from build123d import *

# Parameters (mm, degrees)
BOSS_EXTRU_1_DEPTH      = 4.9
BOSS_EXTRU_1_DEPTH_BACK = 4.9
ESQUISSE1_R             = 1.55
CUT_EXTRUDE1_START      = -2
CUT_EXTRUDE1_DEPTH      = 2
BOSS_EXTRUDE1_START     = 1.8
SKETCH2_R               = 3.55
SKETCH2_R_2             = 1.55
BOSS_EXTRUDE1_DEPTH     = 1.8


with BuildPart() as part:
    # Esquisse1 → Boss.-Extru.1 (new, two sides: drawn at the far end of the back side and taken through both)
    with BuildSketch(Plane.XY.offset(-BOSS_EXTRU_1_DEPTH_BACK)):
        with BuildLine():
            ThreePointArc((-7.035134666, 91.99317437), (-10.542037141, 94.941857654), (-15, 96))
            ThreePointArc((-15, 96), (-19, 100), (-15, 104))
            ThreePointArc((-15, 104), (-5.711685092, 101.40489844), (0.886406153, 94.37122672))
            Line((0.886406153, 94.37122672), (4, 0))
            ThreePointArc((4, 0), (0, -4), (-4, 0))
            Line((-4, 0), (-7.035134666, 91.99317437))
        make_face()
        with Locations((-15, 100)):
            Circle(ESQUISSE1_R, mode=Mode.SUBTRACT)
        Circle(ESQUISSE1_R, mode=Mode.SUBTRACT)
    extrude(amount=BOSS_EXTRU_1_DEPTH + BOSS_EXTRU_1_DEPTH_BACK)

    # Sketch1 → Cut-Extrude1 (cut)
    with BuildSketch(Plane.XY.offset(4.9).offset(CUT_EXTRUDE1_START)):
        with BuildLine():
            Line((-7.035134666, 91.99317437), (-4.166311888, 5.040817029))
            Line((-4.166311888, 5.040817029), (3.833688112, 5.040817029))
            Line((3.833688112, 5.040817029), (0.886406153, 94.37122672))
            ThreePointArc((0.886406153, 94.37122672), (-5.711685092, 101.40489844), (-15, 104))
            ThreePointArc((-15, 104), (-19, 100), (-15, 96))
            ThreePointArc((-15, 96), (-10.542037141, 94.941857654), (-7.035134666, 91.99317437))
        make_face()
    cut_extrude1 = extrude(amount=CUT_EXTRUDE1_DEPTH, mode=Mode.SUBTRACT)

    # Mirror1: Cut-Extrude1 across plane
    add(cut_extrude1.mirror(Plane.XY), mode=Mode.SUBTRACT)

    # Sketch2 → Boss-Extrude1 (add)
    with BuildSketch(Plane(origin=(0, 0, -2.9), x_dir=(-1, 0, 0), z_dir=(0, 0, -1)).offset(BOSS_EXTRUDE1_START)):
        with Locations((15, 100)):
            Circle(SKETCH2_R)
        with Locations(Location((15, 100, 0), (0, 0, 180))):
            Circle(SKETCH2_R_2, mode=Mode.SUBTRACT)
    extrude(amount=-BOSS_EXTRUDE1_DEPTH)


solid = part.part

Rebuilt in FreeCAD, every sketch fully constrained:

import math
import FreeCAD as App
import Part
import Sketcher

V = App.Vector

doc = App.newDocument("Part")
body = doc.addObject("PartDesign::Body", "Body")

# Sketch on XY plane
sketch1 = doc.addObject("Sketcher::SketchObject", "Sketch")
body.addObject(sketch1)
sketch1.AttachmentSupport = (doc.XY_Plane, [""])
sketch1.MapMode = "FlatFace"
sketch1.addGeometry(Part.ArcOfCircle(Part.Circle(V(-15, 86.1, 0), V(0, 0, 1), 9.9), math.radians(37), math.radians(90)), False)
sketch1.addGeometry(Part.LineSegment(V(-7, 92, 0), V(-4, 0, 0)), False)
sketch1.addGeometry(Part.ArcOfCircle(Part.Circle(V(0, 0, 0), V(0, 0, 1), 4), math.radians(180), math.radians(360)), False)
sketch1.addGeometry(Part.LineSegment(V(4, 0, 0), V(0.9, 94.4, 0)), False)
sketch1.addGeometry(Part.ArcOfCircle(Part.Circle(V(-15, 86.1, 0), V(0, 0, 1), 17.9), math.radians(28), math.radians(90)), False)
sketch1.addGeometry(Part.ArcOfCircle(Part.Circle(V(-15, 100, 0), V(0, 0, 1), 4), math.radians(90), math.radians(270)), False)
sketch1.addGeometry(Part.Circle(V(0, 0, 0), V(0, 0, 1), 1.6), False)
sketch1.addGeometry(Part.Circle(V(-15, 100, 0), V(0, 0, 1), 1.6), False)
sketch1.addConstraint(Sketcher.Constraint("Coincident", 0, 1, 1, 1))
sketch1.addConstraint(Sketcher.Constraint("Coincident", 1, 2, 2, 1))
sketch1.addConstraint(Sketcher.Constraint("Coincident", 2, 2, 3, 1))
sketch1.addConstraint(Sketcher.Constraint("Coincident", 3, 2, 4, 1))
sketch1.addConstraint(Sketcher.Constraint("Tangent", 4, 2, 5, 1))
sketch1.addConstraint(Sketcher.Constraint("Tangent", 5, 2, 0, 2))
sketch1.addConstraint(Sketcher.Constraint("Coincident", 2, 3, -1, 1))
sketch1.addConstraint(Sketcher.Constraint("Coincident", 6, 3, -1, 1))
sketch1.addConstraint(Sketcher.Constraint("Coincident", 4, 3, 0, 3))
sketch1.addConstraint(Sketcher.Constraint("Coincident", 7, 3, 5, 3))
sketch1.addConstraint(Sketcher.Constraint("Equal", 2, 5))
sketch1.addConstraint(Sketcher.Constraint("Equal", 6, 7))
sketch1.addConstraint(Sketcher.Constraint("PointOnObject", 1, 2, -1))
sketch1.addConstraint(Sketcher.Constraint("PointOnObject", 2, 2, -1))
sketch1.addConstraint(Sketcher.Constraint("Parallel", 1, 3))
sketch1.addConstraint(Sketcher.Constraint("Vertical", 4, 3, 5, 3))
sketch1.addConstraint(Sketcher.Constraint("Radius", 2, 4.0))
sketch1.addConstraint(Sketcher.Constraint("Diameter", 6, 3.1))
sketch1.addConstraint(Sketcher.Constraint("DistanceX", 0, 3, -1, 1, 15.0))
sketch1.addConstraint(Sketcher.Constraint("DistanceY", -1, 1, 5, 3, 100.0))
sketch1.addConstraint(Sketcher.Constraint("Radius", 0, 9.919789))
sketch1.addConstraint(Sketcher.Constraint("Distance", 1, 92.04323))
pad1 = doc.addObject("PartDesign::Pad", "Pad")
body.addObject(pad1)
pad1.Profile = sketch1
pad1.Type = "TwoLengths"
pad1.Length = 4.9
pad1.Length2 = 4.9

# Sketch on XY plane
sketch2 = doc.addObject("Sketcher::SketchObject", "Sketch001")
body.addObject(sketch2)
sketch2.AttachmentSupport = (doc.XY_Plane, [""])
sketch2.MapMode = "FlatFace"
sketch2.AttachmentOffset = App.Placement(V(0, 0, 2.9), App.Rotation())
sketch2.addGeometry(Part.LineSegment(V(-7, 92, 0), V(-4.2, 5, 0)), False)
sketch2.addGeometry(Part.LineSegment(V(-4.2, 5, 0), V(3.8, 5, 0)), False)
sketch2.addGeometry(Part.LineSegment(V(3.8, 5, 0), V(0.9, 94.4, 0)), False)
sketch2.addGeometry(Part.ArcOfCircle(Part.Circle(V(-15, 86.1, 0), V(0, 0, 1), 17.9), math.radians(28), math.radians(90)), False)
sketch2.addGeometry(Part.ArcOfCircle(Part.Circle(V(-15, 100, 0), V(0, 0, 1), 4), math.radians(90), math.radians(270)), False)
sketch2.addGeometry(Part.ArcOfCircle(Part.Circle(V(-15, 86.1, 0), V(0, 0, 1), 9.9), math.radians(37), math.radians(90)), False)
sketch2.addConstraint(Sketcher.Constraint("Coincident", 0, 2, 1, 1))
sketch2.addConstraint(Sketcher.Constraint("Coincident", 1, 2, 2, 1))
sketch2.addConstraint(Sketcher.Constraint("Coincident", 2, 2, 3, 1))
sketch2.addConstraint(Sketcher.Constraint("Tangent", 3, 2, 4, 1))
sketch2.addConstraint(Sketcher.Constraint("Tangent", 4, 2, 5, 2))
sketch2.addConstraint(Sketcher.Constraint("Coincident", 5, 1, 0, 1))
sketch2.addConstraint(Sketcher.Constraint("Horizontal", 1))
sketch2.addConstraint(Sketcher.Constraint("Coincident", 5, 3, 3, 3))
sketch2.addConstraint(Sketcher.Constraint("Parallel", 0, 2))
sketch2.addConstraint(Sketcher.Constraint("Vertical", 3, 3, 4, 3))
sketch2.addConstraint(Sketcher.Constraint("Radius", 4, 4.0))
sketch2.addConstraint(Sketcher.Constraint("DistanceX", 1, 1, 1, 2, 8.0))
sketch2.addConstraint(Sketcher.Constraint("DistanceX", 3, 3, -1, 1, 15.0))
sketch2.addConstraint(Sketcher.Constraint("DistanceY", -1, 1, 4, 3, 100.0))
sketch2.addConstraint(Sketcher.Constraint("Radius", 3, 17.919789))
sketch2.addConstraint(Sketcher.Constraint("Distance", 0, 86.99967))
sketch2.addConstraint(Sketcher.Constraint("DistanceX", 0, 2, -1, 1, 4.166312))
sketch2.addConstraint(Sketcher.Constraint("DistanceX", 2, 2, 1, 2, 2.947282))
pocket1 = doc.addObject("PartDesign::Pocket", "Pocket")
body.addObject(pocket1)
pocket1.Profile = sketch2
pocket1.Length = 2
pocket1.Reversed = True
doc.recompute()

mirrored = doc.addObject("PartDesign::Mirrored", "Mirrored")
body.addObject(mirrored)
mirrored.Originals = [pocket1]
mirrored.MirrorPlane = (doc.XY_Plane, [""])
body.Tip = mirrored

# Sketch on XY plane
sketch3 = doc.addObject("Sketcher::SketchObject", "Sketch002")
body.addObject(sketch3)
sketch3.AttachmentSupport = (doc.XY_Plane, [""])
sketch3.MapMode = "FlatFace"
sketch3.AttachmentOffset = App.Placement(V(0, 0, -4.7), App.Rotation())
sketch3.addGeometry(Part.Circle(V(-15, 100, 0), V(0, 0, 1), 3.5), False)
sketch3.addGeometry(Part.Circle(V(-15, 100, 0), V(0, 0, 1), 1.6), False)
sketch3.addConstraint(Sketcher.Constraint("Coincident", 1, 3, 0, 3))
sketch3.addConstraint(Sketcher.Constraint("Diameter", 0, 7.1))
sketch3.addConstraint(Sketcher.Constraint("Diameter", 1, 3.1))
sketch3.addConstraint(Sketcher.Constraint("DistanceX", 0, 3, -1, 1, 15.0))
sketch3.addConstraint(Sketcher.Constraint("DistanceY", -1, 1, 0, 3, 100.0))
pad2 = doc.addObject("PartDesign::Pad", "Pad001")
body.addObject(pad2)
pad2.Profile = sketch3
pad2.Length = 1.8

doc.recompute()
